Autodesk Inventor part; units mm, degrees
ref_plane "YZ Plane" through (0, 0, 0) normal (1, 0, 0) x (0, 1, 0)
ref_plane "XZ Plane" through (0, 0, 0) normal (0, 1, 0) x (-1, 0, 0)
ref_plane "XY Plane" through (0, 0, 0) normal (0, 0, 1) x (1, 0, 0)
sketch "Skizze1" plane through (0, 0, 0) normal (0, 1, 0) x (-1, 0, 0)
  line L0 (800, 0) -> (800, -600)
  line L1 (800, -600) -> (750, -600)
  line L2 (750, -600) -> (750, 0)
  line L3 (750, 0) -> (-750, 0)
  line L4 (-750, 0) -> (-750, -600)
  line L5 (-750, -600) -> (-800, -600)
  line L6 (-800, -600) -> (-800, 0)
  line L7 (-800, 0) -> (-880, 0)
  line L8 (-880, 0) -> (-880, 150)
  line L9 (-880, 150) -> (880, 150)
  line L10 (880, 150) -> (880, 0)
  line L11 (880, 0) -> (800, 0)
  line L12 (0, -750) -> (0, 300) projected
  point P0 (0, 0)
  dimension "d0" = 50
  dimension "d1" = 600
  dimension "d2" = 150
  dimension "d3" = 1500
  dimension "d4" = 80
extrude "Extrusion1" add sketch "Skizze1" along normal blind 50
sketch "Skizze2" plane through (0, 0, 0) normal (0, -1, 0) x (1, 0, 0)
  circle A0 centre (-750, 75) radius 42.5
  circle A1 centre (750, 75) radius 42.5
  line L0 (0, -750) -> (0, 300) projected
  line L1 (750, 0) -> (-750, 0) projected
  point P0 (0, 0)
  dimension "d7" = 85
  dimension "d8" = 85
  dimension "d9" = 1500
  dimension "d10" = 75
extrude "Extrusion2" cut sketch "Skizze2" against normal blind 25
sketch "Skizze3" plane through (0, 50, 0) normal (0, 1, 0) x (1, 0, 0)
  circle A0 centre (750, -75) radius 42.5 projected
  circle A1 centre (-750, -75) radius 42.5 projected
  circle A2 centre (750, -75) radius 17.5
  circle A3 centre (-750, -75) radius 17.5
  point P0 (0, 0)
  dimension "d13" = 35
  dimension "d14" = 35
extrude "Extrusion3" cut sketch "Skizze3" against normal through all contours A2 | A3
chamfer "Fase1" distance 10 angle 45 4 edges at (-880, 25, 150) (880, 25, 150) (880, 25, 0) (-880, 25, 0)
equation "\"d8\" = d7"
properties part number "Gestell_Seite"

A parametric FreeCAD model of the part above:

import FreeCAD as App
import Part
import Sketcher
from FreeCAD import Vector


def edges_at(feature, points):
    """Names of the edges that pass closest to the given points."""
    edges = feature.Shape.Edges
    near = lambda p: min(range(len(edges)), key=lambda i: edges[i].distToShape(Part.Vertex(*p))[0])
    return sorted({f"Edge{near(p) + 1}" for p in points})


def add_polygon(sketch, points):
    """Adds a closed chain of lines whose ends are joined by coincident constraints."""
    first, n = sketch.GeometryCount, len(points)
    for a, b in zip(points, points[1:] + points[:1]):
        sketch.addGeometry(Part.LineSegment(App.Vector(*a, 0), App.Vector(*b, 0)), False)
    for i in range(n):
        sketch.addConstraint(Sketcher.Constraint("Coincident", first + i, 2, first + (i + 1) % n, 1))

doc = App.newDocument("Part")
body = doc.addObject("PartDesign::Body", "Body")

# Sketch on XZ plane
sketch1 = body.newObject("Sketcher::SketchObject", "Sketch")
sketch1.AttachmentSupport = (doc.getObject("XZ_Plane"), [""])
sketch1.MapMode = "FlatFace"
add_polygon(sketch1, [(-800, -600), (-800, 0), (-880, 0), (-880, 150), (880, 150), (880, 0), (800, 0), (800, -600), (750, -600), (750, 0), (-750, 0), (-750, -600)])  # lines 0-11
sketch1.addConstraint([
    Sketcher.Constraint("Vertical", 0),
    Sketcher.Constraint("Horizontal", 1),
    Sketcher.Constraint("Vertical", 2),
    Sketcher.Constraint("Horizontal", 3),
    Sketcher.Constraint("Vertical", 4),
    Sketcher.Constraint("Horizontal", 5),
    Sketcher.Constraint("Vertical", 6),
    Sketcher.Constraint("Horizontal", 7),
    Sketcher.Constraint("Vertical", 8),
    Sketcher.Constraint("Horizontal", 9),
    Sketcher.Constraint("Vertical", 10),
    Sketcher.Constraint("Horizontal", 11),
    Sketcher.Constraint("Symmetric", 1, 2, 4, 2, -1, 1),
    Sketcher.Constraint("Symmetric", 8, 2, 9, 2, -1, 1),
    Sketcher.Constraint("Symmetric", 0, 2, 5, 2, -2),
    Sketcher.Constraint("Horizontal", 7, 2, 10, 2),
    Sketcher.Constraint("DistanceX", 1, 2, 1, 1, 80.0),
    Sketcher.Constraint("DistanceX", 7, 2, 7, 1, 50.0),
    Sketcher.Constraint("DistanceX", 9, 2, 9, 1, 1500.0),
    Sketcher.Constraint("DistanceY", 0, 1, 0, 2, 600.0),
    Sketcher.Constraint("DistanceY", 2, 1, 2, 2, 150.0),
])
pad1 = body.newObject("PartDesign::Pad", "Pad")
pad1.Profile = sketch1
pad1.Length = 50
pad1.Reversed = True

# Sketch on XZ plane
sketch2 = body.newObject("Sketcher::SketchObject", "Sketch001")
sketch2.AttachmentSupport = (doc.getObject("XZ_Plane"), [""])
sketch2.MapMode = "FlatFace"
sketch2.addGeometry([
    Part.Circle(Vector(-750, 75, 0), Vector(0, 0, 1), 42),
    Part.Circle(Vector(750, 75, 0), Vector(0, 0, 1), 42),
], False)
sketch2.addConstraint([
    Sketcher.Constraint("Equal", 0, 1),
    Sketcher.Constraint("Symmetric", 0, 3, 1, 3, -2),
    Sketcher.Constraint("Diameter", 0, 85.0),
    Sketcher.Constraint("DistanceY", -1, 1, 0, 3, 75.0),
    Sketcher.Constraint("DistanceX", 0, 3, 1, 3, 1500.0),
])
pocket1 = body.newObject("PartDesign::Pocket", "Pocket")
pocket1.Profile = sketch2
pocket1.Length = 25

# Sketch on XZ plane
sketch3 = body.newObject("Sketcher::SketchObject", "Sketch002")
sketch3.AttachmentSupport = (doc.getObject("XZ_Plane"), [""])
sketch3.MapMode = "FlatFace"
sketch3.AttachmentOffset = App.Placement(Vector(0, 0, -50), App.Rotation())
sketch3.addGeometry([
    Part.Circle(Vector(750, 75, 0), Vector(0, 0, 1), 18),
    Part.Circle(Vector(-750, 75, 0), Vector(0, 0, 1), 18),
], False)
sketch3.addConstraint([
    Sketcher.Constraint("Equal", 0, 1),
    Sketcher.Constraint("Symmetric", 0, 3, 1, 3, -2),
    Sketcher.Constraint("Diameter", 0, 35.0),
    Sketcher.Constraint("DistanceX", -1, 1, 0, 3, 750.0),
    Sketcher.Constraint("DistanceY", -1, 1, 0, 3, 75.0),
])
pocket2 = body.newObject("PartDesign::Pocket", "Pocket001")
pocket2.Profile = sketch3
pocket2.Type = "ThroughAll"
pocket2.Reversed = True
doc.recompute()

chamfer = body.newObject("PartDesign::Chamfer", "Chamfer")
chamfer.Base = (pocket2, edges_at(pocket2, [
    (-880, 25, 150),
    (880, 25, 150),
    (880, 25, 0),
    (-880, 25, 0),
]))
chamfer.Size = 10

doc.recompute()
